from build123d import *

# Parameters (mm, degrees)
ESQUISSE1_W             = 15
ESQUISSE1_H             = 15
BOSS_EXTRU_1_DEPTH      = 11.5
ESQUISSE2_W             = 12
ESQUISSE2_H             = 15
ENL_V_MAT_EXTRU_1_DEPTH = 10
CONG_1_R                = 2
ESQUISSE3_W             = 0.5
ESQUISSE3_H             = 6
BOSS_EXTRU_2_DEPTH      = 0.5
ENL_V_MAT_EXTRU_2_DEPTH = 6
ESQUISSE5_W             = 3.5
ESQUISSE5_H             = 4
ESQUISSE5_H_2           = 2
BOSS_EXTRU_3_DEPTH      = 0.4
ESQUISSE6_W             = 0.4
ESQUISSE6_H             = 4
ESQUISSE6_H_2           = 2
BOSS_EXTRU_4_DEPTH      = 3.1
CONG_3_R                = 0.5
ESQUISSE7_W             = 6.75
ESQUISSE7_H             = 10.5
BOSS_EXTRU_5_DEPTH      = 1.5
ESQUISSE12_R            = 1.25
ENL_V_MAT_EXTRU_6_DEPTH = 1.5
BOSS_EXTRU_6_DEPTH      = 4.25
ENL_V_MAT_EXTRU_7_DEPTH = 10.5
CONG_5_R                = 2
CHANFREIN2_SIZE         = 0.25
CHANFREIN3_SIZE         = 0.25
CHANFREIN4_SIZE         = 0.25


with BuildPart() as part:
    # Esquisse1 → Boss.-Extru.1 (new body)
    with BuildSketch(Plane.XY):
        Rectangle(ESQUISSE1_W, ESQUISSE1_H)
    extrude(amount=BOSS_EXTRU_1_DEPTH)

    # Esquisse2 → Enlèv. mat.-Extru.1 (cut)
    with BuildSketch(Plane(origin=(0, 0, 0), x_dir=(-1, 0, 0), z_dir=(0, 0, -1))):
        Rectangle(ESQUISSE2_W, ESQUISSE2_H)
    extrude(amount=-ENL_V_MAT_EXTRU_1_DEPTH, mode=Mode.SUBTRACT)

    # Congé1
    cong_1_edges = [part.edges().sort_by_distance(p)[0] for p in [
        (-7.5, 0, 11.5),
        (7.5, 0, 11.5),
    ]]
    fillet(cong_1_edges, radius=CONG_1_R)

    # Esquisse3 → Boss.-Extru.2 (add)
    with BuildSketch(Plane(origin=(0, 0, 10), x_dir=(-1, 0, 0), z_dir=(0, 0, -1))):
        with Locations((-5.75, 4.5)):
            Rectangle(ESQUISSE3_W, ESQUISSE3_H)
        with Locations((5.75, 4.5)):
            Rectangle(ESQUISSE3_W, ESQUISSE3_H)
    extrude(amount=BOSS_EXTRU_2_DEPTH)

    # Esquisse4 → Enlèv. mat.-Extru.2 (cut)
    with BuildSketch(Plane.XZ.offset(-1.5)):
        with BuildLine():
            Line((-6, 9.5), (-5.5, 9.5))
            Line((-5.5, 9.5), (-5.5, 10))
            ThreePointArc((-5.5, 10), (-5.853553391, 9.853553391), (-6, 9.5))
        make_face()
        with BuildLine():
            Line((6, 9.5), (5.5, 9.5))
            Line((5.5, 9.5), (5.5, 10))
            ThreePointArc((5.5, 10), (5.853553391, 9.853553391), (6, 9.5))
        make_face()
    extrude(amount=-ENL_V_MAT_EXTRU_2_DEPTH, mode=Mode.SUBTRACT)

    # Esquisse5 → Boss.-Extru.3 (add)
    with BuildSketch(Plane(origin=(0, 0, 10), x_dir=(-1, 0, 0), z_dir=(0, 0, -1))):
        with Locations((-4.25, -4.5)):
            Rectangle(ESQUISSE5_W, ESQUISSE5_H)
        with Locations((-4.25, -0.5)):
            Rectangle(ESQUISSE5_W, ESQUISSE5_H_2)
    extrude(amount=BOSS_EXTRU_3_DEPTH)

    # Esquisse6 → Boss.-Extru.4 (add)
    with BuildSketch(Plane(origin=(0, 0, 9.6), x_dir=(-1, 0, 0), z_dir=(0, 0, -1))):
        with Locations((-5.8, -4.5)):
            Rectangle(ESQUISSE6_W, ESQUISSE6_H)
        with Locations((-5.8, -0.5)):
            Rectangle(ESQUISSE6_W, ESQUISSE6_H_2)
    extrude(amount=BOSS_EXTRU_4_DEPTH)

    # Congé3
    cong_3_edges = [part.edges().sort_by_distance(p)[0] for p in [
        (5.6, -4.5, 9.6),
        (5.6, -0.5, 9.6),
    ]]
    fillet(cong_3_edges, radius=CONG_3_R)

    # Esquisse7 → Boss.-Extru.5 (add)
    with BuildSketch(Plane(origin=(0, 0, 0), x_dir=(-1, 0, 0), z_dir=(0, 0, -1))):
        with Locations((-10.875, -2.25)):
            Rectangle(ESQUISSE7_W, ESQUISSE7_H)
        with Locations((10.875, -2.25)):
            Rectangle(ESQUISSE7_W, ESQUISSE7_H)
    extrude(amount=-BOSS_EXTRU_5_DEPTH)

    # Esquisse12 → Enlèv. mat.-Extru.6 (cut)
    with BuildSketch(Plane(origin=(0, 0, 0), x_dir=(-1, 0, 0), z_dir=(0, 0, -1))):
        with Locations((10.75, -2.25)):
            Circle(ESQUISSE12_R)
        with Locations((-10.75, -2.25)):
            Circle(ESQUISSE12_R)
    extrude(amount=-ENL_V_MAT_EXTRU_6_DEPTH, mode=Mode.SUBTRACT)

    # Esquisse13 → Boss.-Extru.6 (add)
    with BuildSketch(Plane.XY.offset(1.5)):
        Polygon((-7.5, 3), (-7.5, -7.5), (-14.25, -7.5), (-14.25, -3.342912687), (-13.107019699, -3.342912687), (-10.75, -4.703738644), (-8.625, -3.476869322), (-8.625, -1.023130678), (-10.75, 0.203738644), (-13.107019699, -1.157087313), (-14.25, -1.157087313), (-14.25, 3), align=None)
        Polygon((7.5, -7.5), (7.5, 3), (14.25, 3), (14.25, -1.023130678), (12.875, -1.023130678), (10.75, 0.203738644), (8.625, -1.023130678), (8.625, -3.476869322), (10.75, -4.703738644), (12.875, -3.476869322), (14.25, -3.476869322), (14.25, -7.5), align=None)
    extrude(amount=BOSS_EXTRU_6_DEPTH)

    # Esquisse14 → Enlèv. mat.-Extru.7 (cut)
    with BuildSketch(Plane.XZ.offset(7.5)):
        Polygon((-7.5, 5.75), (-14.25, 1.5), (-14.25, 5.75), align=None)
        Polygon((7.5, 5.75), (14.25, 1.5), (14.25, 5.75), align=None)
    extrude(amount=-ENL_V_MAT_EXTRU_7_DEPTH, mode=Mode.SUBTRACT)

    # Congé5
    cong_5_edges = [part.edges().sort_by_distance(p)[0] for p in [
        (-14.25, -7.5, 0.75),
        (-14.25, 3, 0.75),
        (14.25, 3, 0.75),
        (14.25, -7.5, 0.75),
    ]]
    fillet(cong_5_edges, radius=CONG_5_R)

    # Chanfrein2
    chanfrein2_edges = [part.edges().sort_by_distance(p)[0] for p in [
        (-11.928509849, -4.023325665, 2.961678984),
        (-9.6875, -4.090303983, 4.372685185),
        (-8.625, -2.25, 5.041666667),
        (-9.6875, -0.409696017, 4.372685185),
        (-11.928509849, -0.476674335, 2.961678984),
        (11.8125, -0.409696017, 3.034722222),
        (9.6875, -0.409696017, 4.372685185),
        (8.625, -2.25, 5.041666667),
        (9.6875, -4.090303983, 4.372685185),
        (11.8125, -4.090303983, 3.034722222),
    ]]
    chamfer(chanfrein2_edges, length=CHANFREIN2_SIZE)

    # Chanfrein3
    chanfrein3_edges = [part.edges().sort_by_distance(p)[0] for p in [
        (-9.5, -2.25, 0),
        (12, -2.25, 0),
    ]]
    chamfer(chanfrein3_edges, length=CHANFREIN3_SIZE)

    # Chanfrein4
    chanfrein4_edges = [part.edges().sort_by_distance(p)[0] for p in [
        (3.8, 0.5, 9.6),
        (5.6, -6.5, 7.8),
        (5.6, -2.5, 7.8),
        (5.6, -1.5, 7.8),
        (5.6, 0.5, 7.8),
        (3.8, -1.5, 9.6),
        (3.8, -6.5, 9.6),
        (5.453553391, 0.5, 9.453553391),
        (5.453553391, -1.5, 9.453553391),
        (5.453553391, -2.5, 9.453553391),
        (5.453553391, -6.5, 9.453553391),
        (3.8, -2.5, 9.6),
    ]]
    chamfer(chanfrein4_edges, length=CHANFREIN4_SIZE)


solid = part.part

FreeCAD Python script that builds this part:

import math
import FreeCAD as App
import Part
import Sketcher

V = App.Vector
Q = App.Units.Quantity


def edges_at(feature, points):
    """Names of the edges that pass closest to the given points."""
    edges = feature.Shape.Edges
    near = lambda p: min(range(len(edges)), key=lambda i: edges[i].distToShape(Part.Vertex(*p))[0])
    return sorted({f"Edge{near(p) + 1}" for p in points})


def add_polygon(sketch, points):
    """Adds a closed chain of lines whose ends are joined by coincident constraints."""
    first, n = sketch.GeometryCount, len(points)
    for a, b in zip(points, points[1:] + points[:1]):
        sketch.addGeometry(Part.LineSegment(App.Vector(*a, 0), App.Vector(*b, 0)), False)
    for i in range(n):
        sketch.addConstraint(Sketcher.Constraint("Coincident", first + i, 2, first + (i + 1) % n, 1))

doc = App.newDocument("Part")
body = doc.addObject("PartDesign::Body", "Body")

# Sketch on XY plane
sketch1 = body.newObject("Sketcher::SketchObject", "Sketch")
sketch1.AttachmentSupport = (doc.getObject("XY_Plane"), [""])
sketch1.MapMode = "FlatFace"
add_polygon(sketch1, [(-7.5, 7.5), (-7.5, -7.5), (7.5, -7.5), (7.5, 7.5)])  # lines 0-3
sketch1.addConstraint([
    Sketcher.Constraint("Vertical", 0),
    Sketcher.Constraint("Horizontal", 1),
    Sketcher.Constraint("Vertical", 2),
    Sketcher.Constraint("Horizontal", 3),
    Sketcher.Constraint("Symmetric", 0, 2, 2, 2, -1, 1),
    Sketcher.Constraint("Equal", 3, 0),
    Sketcher.Constraint("DistanceX", 1, 1, 1, 2, 15.0),
])
pad1 = body.newObject("PartDesign::Pad", "Pad")
pad1.Profile = sketch1
pad1.Length = 11.5

# Sketch on XY plane
sketch2 = body.newObject("Sketcher::SketchObject", "Sketch001")
sketch2.AttachmentSupport = (doc.getObject("XY_Plane"), [""])
sketch2.MapMode = "FlatFace"
add_polygon(sketch2, [(6, 7.5), (6, -7.5), (-6, -7.5), (-6, 7.5)])  # lines 0-3
sketch2.addConstraint([
    Sketcher.Constraint("Vertical", 0),
    Sketcher.Constraint("Horizontal", 1),
    Sketcher.Constraint("Vertical", 2),
    Sketcher.Constraint("Horizontal", 3),
    Sketcher.Constraint("Symmetric", 0, 2, 2, 2, -1, 1),
    Sketcher.Constraint("DistanceX", 1, 2, 1, 1, 12.0),
    Sketcher.Constraint("DistanceY", 0, 2, 0, 1, 15.0),
])
pocket1 = body.newObject("PartDesign::Pocket", "Pocket")
pocket1.Profile = sketch2
pocket1.Length = 10
pocket1.Reversed = True
doc.recompute()

fillet = body.newObject("PartDesign::Fillet", "Fillet")
fillet.Base = (pocket1, edges_at(pocket1, [(-7.5, 0, 11.5), (7.5, 0, 11.5)]))
fillet.Radius = 2

# Sketch on XY plane
sketch3 = body.newObject("Sketcher::SketchObject", "Sketch002")
sketch3.AttachmentSupport = (doc.getObject("XY_Plane"), [""])
sketch3.MapMode = "FlatFace"
sketch3.AttachmentOffset = App.Placement(V(0, 0, 10), App.Rotation())
add_polygon(sketch3, [(6, 7.5), (6, 1.5), (5.5, 1.5), (5.5, 7.5)])  # lines 0-3
add_polygon(sketch3, [(-5.5, 7.5), (-5.5, 1.5), (-6, 1.5), (-6, 7.5)])  # lines 4-7
sketch3.addConstraint([
    Sketcher.Constraint("Vertical", 0),
    Sketcher.Constraint("Horizontal", 1),
    Sketcher.Constraint("Vertical", 2),
    Sketcher.Constraint("Horizontal", 3),
    Sketcher.Constraint("Vertical", 4),
    Sketcher.Constraint("Horizontal", 5),
    Sketcher.Constraint("Vertical", 6),
    Sketcher.Constraint("Horizontal", 7),
    Sketcher.Constraint("Symmetric", 1, 2, 4, 2, -2),
    Sketcher.Constraint("Symmetric", 3, 2, 6, 2, -2),
    Sketcher.Constraint("DistanceY", 0, 2, 0, 1, 6.0),
    Sketcher.Constraint("DistanceX", 1, 2, 1, 1, 0.5),
    Sketcher.Constraint("DistanceX", -1, 1, 0, 2, 6.0),
    Sketcher.Constraint("DistanceY", -1, 1, 0, 2, 1.5),
])
pad2 = body.newObject("PartDesign::Pad", "Pad001")
pad2.Profile = sketch3
pad2.Length = 0.5
pad2.Reversed = True

# Sketch on XZ plane
sketch4 = body.newObject("Sketcher::SketchObject", "Sketch003")
sketch4.AttachmentSupport = (doc.getObject("XZ_Plane"), [""])
sketch4.MapMode = "FlatFace"
sketch4.AttachmentOffset = App.Placement(V(0, 0, -1.5), App.Rotation())
sketch4.addGeometry([
    Part.LineSegment(V(-6, 9.5, 0), V(-5.5, 9.5, 0)),  # 0
    Part.LineSegment(V(-5.5, 9.5, 0), V(-5.5, 10, 0)),  # 1
    Part.ArcOfCircle(Part.Circle(V(-5.5, 9.5, 0), V(0, 0, 1), 0.5), math.radians(90), math.radians(180)),  # 2
    Part.LineSegment(V(5.5, 9.5, 0), V(6, 9.5, 0)),  # 3
    Part.ArcOfCircle(Part.Circle(V(5.5, 9.5, 0), V(0, 0, 1), 0.5), math.radians(0), math.radians(90)),  # 4
    Part.LineSegment(V(5.5, 10, 0), V(5.5, 9.5, 0)),  # 5
], False)
sketch4.addConstraint([
    Sketcher.Constraint("Coincident", 0, 2, 1, 1),
    Sketcher.Constraint("Coincident", 1, 2, 2, 1),
    Sketcher.Constraint("Coincident", 2, 2, 0, 1),
    Sketcher.Constraint("Coincident", 3, 2, 4, 1),
    Sketcher.Constraint("Coincident", 4, 2, 5, 1),
    Sketcher.Constraint("Coincident", 5, 2, 3, 1),
    Sketcher.Constraint("Horizontal", 0),
    Sketcher.Constraint("Vertical", 1),
    Sketcher.Constraint("Horizontal", 3),
    Sketcher.Constraint("Vertical", 5),
    Sketcher.Constraint("Coincident", 0, 2, 2, 3),
    Sketcher.Constraint("Coincident", 5, 2, 4, 3),
    Sketcher.Constraint("Equal", 2, 4),
    Sketcher.Constraint("Symmetric", 2, 3, 4, 3, -2),
    Sketcher.Constraint("Radius", 2, 0.5),
    Sketcher.Constraint("DistanceY", -1, 1, 1, 2, 10.0),
    Sketcher.Constraint("DistanceX", 2, 2, -1, 1, 6.0),
])
pocket2 = body.newObject("PartDesign::Pocket", "Pocket001")
pocket2.Profile = sketch4
pocket2.Length = 6

# Sketch on XY plane
sketch5 = body.newObject("Sketcher::SketchObject", "Sketch004")
sketch5.AttachmentSupport = (doc.getObject("XY_Plane"), [""])
sketch5.MapMode = "FlatFace"
sketch5.AttachmentOffset = App.Placement(V(0, 0, 10), App.Rotation())
add_polygon(sketch5, [(6, -2.5), (6, -6.5), (2.5, -6.5), (2.5, -2.5)])  # lines 0-3
add_polygon(sketch5, [(6, 0.5), (6, -1.5), (2.5, -1.5), (2.5, 0.5)])  # lines 4-7
sketch5.addConstraint([
    Sketcher.Constraint("Vertical", 0),
    Sketcher.Constraint("Horizontal", 1),
    Sketcher.Constraint("Vertical", 2),
    Sketcher.Constraint("Horizontal", 3),
    Sketcher.Constraint("Vertical", 4),
    Sketcher.Constraint("Horizontal", 5),
    Sketcher.Constraint("Vertical", 6),
    Sketcher.Constraint("Horizontal", 7),
    Sketcher.Constraint("Vertical", 3, 2, 4, 2),
    Sketcher.Constraint("Vertical", 2, 2, 5, 2),
    Sketcher.Constraint("DistanceY", 0, 2, 0, 1, 4.0),
    Sketcher.Constraint("DistanceY", 4, 2, 4, 1, 2.0),
    Sketcher.Constraint("DistanceX", 1, 2, 1, 1, 3.5),
    Sketcher.Constraint("DistanceX", -1, 1, 0, 2, 6.0),
    Sketcher.Constraint("DistanceY", 3, 2, 4, 2, 1.0),
    Sketcher.Constraint("DistanceY", 0, 2, -1, 1, 6.5),
])
pad3 = body.newObject("PartDesign::Pad", "Pad002")
pad3.Profile = sketch5
pad3.Length = 0.4
pad3.Reversed = True

# Sketch on XY plane
sketch6 = body.newObject("Sketcher::SketchObject", "Sketch005")
sketch6.AttachmentSupport = (doc.getObject("XY_Plane"), [""])
sketch6.MapMode = "FlatFace"
sketch6.AttachmentOffset = App.Placement(V(0, 0, 9.6), App.Rotation())
add_polygon(sketch6, [(6, -2.5), (6, -6.5), (5.6, -6.5), (5.6, -2.5)])  # lines 0-3
add_polygon(sketch6, [(6, 0.5), (6, -1.5), (5.6, -1.5), (5.6, 0.5)])  # lines 4-7
sketch6.addConstraint([
    Sketcher.Constraint("Vertical", 0),
    Sketcher.Constraint("Horizontal", 1),
    Sketcher.Constraint("Vertical", 2),
    Sketcher.Constraint("Horizontal", 3),
    Sketcher.Constraint("Vertical", 4),
    Sketcher.Constraint("Horizontal", 5),
    Sketcher.Constraint("Vertical", 6),
    Sketcher.Constraint("Horizontal", 7),
    Sketcher.Constraint("Vertical", 3, 2, 4, 2),
    Sketcher.Constraint("Vertical", 2, 2, 5, 2),
    Sketcher.Constraint("DistanceY", 0, 2, 0, 1, 4.0),
    Sketcher.Constraint("DistanceY", 4, 2, 4, 1, 2.0),
    Sketcher.Constraint("DistanceX", 1, 2, 1, 1, 0.4),
    Sketcher.Constraint("DistanceX", -1, 1, 0, 2, 6.0),
    Sketcher.Constraint("DistanceY", 3, 2, 4, 2, 1.0),
    Sketcher.Constraint("DistanceY", 0, 2, -1, 1, 6.5),
])
pad4 = body.newObject("PartDesign::Pad", "Pad003")
pad4.Profile = sketch6
pad4.Length = 3.1
pad4.Reversed = True
doc.recompute()

fillet2 = body.newObject("PartDesign::Fillet", "Fillet001")
fillet2.Base = (pad4, edges_at(pad4, [(5.6, -4.5, 9.6), (5.6, -0.5, 9.6)]))
fillet2.Radius = 0.5

# Sketch on XY plane
sketch7 = body.newObject("Sketcher::SketchObject", "Sketch006")
sketch7.AttachmentSupport = (doc.getObject("XY_Plane"), [""])
sketch7.MapMode = "FlatFace"
add_polygon(sketch7, [(14.25, 3), (14.25, -7.5), (7.5, -7.5), (7.5, 3)])  # lines 0-3
add_polygon(sketch7, [(-7.5, 3), (-7.5, -7.5), (-14.25, -7.5), (-14.25, 3)])  # lines 4-7
sketch7.addConstraint([
    Sketcher.Constraint("Vertical", 0),
    Sketcher.Constraint("Horizontal", 1),
    Sketcher.Constraint("Vertical", 2),
    Sketcher.Constraint("Horizontal", 3),
    Sketcher.Constraint("Vertical", 4),
    Sketcher.Constraint("Horizontal", 5),
    Sketcher.Constraint("Vertical", 6),
    Sketcher.Constraint("Horizontal", 7),
    Sketcher.Constraint("Symmetric", 1, 2, 4, 2, -2),
    Sketcher.Constraint("Symmetric", 3, 2, 6, 2, -2),
    Sketcher.Constraint("DistanceY", 0, 2, 0, 1, 10.5),
    Sketcher.Constraint("DistanceY", -1, 1, 2, 2, 3.0),
    Sketcher.Constraint("DistanceX", 4, 2, 1, 2, 15.0),
    Sketcher.Constraint("DistanceX", 1, 2, 1, 1, 6.75),
])
pad5 = body.newObject("PartDesign::Pad", "Pad004")
pad5.Profile = sketch7
pad5.Length = 1.5

# Sketch on XY plane
sketch8 = body.newObject("Sketcher::SketchObject", "Sketch007")
sketch8.AttachmentSupport = (doc.getObject("XY_Plane"), [""])
sketch8.MapMode = "FlatFace"
sketch8.addGeometry([
    Part.Circle(V(-10.75, -2.25, 0), V(0, 0, 1), 1.25),
    Part.Circle(V(10.75, -2.25, 0), V(0, 0, 1), 1.25),
], False)
sketch8.addConstraint([
    Sketcher.Constraint("Equal", 0, 1),
    Sketcher.Constraint("Symmetric", 0, 3, 1, 3, -2),
    Sketcher.Constraint("Diameter", 0, 2.5),
    Sketcher.Constraint("DistanceX", 0, 3, 1, 3, 21.5),
    Sketcher.Constraint("DistanceY", 0, 3, -1, 1, 2.25),
])
pocket3 = body.newObject("PartDesign::Pocket", "Pocket002")
pocket3.Profile = sketch8
pocket3.Length = 1.5
pocket3.Reversed = True

# Sketch on XY plane
sketch9 = body.newObject("Sketcher::SketchObject", "Sketch008")
sketch9.AttachmentSupport = (doc.getObject("XY_Plane"), [""])
sketch9.MapMode = "FlatFace"
sketch9.AttachmentOffset = App.Placement(V(0, 0, 1.5), App.Rotation())
add_polygon(sketch9, [(-7.5, -7.5), (-7.5, 3), (-14.25, 3), (-14.25, -1.157087), (-13.10702, -1.157087), (-10.75, 0.203739), (-8.625, -1.023131), (-8.625, -3.476869), (-10.75, -4.703739), (-13.10702, -3.342913), (-14.25, -3.342913), (-14.25, -7.5)])  # lines 0-11
add_polygon(sketch9, [(7.5, 3), (7.5, -7.5), (14.25, -7.5), (14.25, -3.476869), (12.875, -3.476869), (10.75, -4.703739), (8.625, -3.476869), (8.625, -1.023131), (10.75, 0.203739), (12.875, -1.023131), (14.25, -1.023131), (14.25, 3)])  # lines 12-23
sketch9.addConstraint([
    Sketcher.Constraint("Vertical", 0),
    Sketcher.Constraint("Horizontal", 1),
    Sketcher.Constraint("Vertical", 2),
    Sketcher.Constraint("Horizontal", 3),
    Sketcher.Constraint("Vertical", 6),
    Sketcher.Constraint("Horizontal", 9),
    Sketcher.Constraint("Vertical", 10),
    Sketcher.Constraint("Horizontal", 11),
    Sketcher.Constraint("Vertical", 12),
    Sketcher.Constraint("Horizontal", 13),
    Sketcher.Constraint("Vertical", 14),
    Sketcher.Constraint("Horizontal", 15),
    Sketcher.Constraint("Vertical", 18),
    Sketcher.Constraint("Horizontal", 21),
    Sketcher.Constraint("Vertical", 22),
    Sketcher.Constraint("Horizontal", 23),
    Sketcher.Constraint("Symmetric", 11, 2, 12, 2, -2),
    Sketcher.Constraint("Symmetric", 7, 2, 16, 2, -2),
    Sketcher.Constraint("Symmetric", 6, 2, 17, 2, -2),
    Sketcher.Constraint("Symmetric", 4, 2, 19, 2, -2),
    Sketcher.Constraint("Symmetric", 1, 2, 22, 2, -2),
    Sketcher.Constraint("Parallel", 4, 7),
    Sketcher.Constraint("Parallel", 5, 8),
    Sketcher.Constraint("Parallel", 7, 16),
    Sketcher.Constraint("Parallel", 8, 17),
    Sketcher.Constraint("Parallel", 16, 19),
    Sketcher.Constraint("Parallel", 17, 20),
    Sketcher.Constraint("Horizontal", 6, 2, 14, 2),
    Sketcher.Constraint("Horizontal", 18, 2, 20, 2),
    Sketcher.Constraint("Vertical", 4, 2, 7, 2),
    Sketcher.Constraint("Vertical", 3, 2, 8, 2),
    Sketcher.Constraint("Vertical", 2, 2, 9, 2),
    Sketcher.Constraint("Vertical", 14, 2, 21, 2),
    Sketcher.Constraint("Equal", 2, 10),
    Sketcher.Constraint("Angle", 4, Q("30 deg")),
    Sketcher.Constraint("DistanceY", 0, 1, 0, 2, 10.5),
    Sketcher.Constraint("DistanceY", -1, 1, 0, 2, 3.0),
    Sketcher.Constraint("DistanceX", 11, 2, 12, 2, 15.0),
    Sketcher.Constraint("DistanceX", 1, 2, 1, 1, 6.75),
    Sketcher.Constraint("DistanceX", 2, 2, 4, 2, 3.5),
    Sketcher.Constraint("DistanceX", 15, 2, 15, 1, 1.375),
    Sketcher.Constraint("DistanceX", 3, 1, 3, 2, 1.14298),
    Sketcher.Constraint("DistanceY", 6, 2, 6, 1, 2.453739),
])
pad6 = body.newObject("PartDesign::Pad", "Pad005")
pad6.Profile = sketch9
pad6.Length = 4.25

# Sketch on XZ plane
sketch10 = body.newObject("Sketcher::SketchObject", "Sketch009")
sketch10.AttachmentSupport = (doc.getObject("XZ_Plane"), [""])
sketch10.MapMode = "FlatFace"
sketch10.AttachmentOffset = App.Placement(V(0, 0, 7.5), App.Rotation())
add_polygon(sketch10, [(-14.25, 1.5), (-7.5, 5.75), (-14.25, 5.75)])  # lines 0-2
add_polygon(sketch10, [(7.5, 5.75), (14.25, 1.5), (14.25, 5.75)])  # lines 3-5
sketch10.addConstraint([
    Sketcher.Constraint("Horizontal", 1),
    Sketcher.Constraint("Vertical", 2),
    Sketcher.Constraint("Vertical", 4),
    Sketcher.Constraint("Horizontal", 5),
    Sketcher.Constraint("Symmetric", 2, 2, 3, 2, -2),
    Sketcher.Constraint("Symmetric", 0, 2, 5, 2, -2),
    Sketcher.Constraint("DistanceX", 0, 2, 5, 2, 15.0),
    Sketcher.Constraint("DistanceX", 1, 2, 1, 1, 6.75),
    Sketcher.Constraint("DistanceY", 2, 2, 2, 1, 4.25),
    Sketcher.Constraint("DistanceY", -1, 1, 2, 2, 1.5),
])
pocket4 = body.newObject("PartDesign::Pocket", "Pocket003")
pocket4.Profile = sketch10
pocket4.Length = 10.5
doc.recompute()

fillet3 = body.newObject("PartDesign::Fillet", "Fillet002")
fillet3.Base = (pocket4, edges_at(pocket4, [
    (-14.25, -7.5, 0.75),
    (-14.25, 3, 0.75),
    (14.25, 3, 0.75),
    (14.25, -7.5, 0.75),
]))
fillet3.Radius = 2
doc.recompute()

chamfer = body.newObject("PartDesign::Chamfer", "Chamfer")
chamfer.Base = (fillet3, edges_at(fillet3, [
    (-11.929, -4.023, 2.962),
    (-9.688, -4.09, 4.373),
    (-8.625, -2.25, 5.042),
    (-9.688, -0.41, 4.373),
    (-11.929, -0.477, 2.962),
    (11.812, -0.41, 3.035),
    (9.688, -0.41, 4.373),
    (8.625, -2.25, 5.042),
    (9.688, -4.09, 4.373),
    (11.812, -4.09, 3.035),
]))
chamfer.Size = 0.25
doc.recompute()

chamfer2 = body.newObject("PartDesign::Chamfer", "Chamfer001")
chamfer2.Base = (chamfer, edges_at(chamfer, [(-9.5, -2.25, 0), (12, -2.25, 0)]))
chamfer2.Size = 0.25
doc.recompute()

chamfer3 = body.newObject("PartDesign::Chamfer", "Chamfer002")
chamfer3.Base = (chamfer2, edges_at(chamfer2, [
    (3.8, 0.5, 9.6),
    (5.6, -6.5, 7.8),
    (5.6, -2.5, 7.8),
    (5.6, -1.5, 7.8),
    (5.6, 0.5, 7.8),
    (3.8, -1.5, 9.6),
    (3.8, -6.5, 9.6),
    (5.454, 0.5, 9.454),
    (5.454, -1.5, 9.454),
    (5.454, -2.5, 9.454),
    (5.454, -6.5, 9.454),
    (3.8, -2.5, 9.6),
]))
chamfer3.Size = 0.25

doc.recompute()
